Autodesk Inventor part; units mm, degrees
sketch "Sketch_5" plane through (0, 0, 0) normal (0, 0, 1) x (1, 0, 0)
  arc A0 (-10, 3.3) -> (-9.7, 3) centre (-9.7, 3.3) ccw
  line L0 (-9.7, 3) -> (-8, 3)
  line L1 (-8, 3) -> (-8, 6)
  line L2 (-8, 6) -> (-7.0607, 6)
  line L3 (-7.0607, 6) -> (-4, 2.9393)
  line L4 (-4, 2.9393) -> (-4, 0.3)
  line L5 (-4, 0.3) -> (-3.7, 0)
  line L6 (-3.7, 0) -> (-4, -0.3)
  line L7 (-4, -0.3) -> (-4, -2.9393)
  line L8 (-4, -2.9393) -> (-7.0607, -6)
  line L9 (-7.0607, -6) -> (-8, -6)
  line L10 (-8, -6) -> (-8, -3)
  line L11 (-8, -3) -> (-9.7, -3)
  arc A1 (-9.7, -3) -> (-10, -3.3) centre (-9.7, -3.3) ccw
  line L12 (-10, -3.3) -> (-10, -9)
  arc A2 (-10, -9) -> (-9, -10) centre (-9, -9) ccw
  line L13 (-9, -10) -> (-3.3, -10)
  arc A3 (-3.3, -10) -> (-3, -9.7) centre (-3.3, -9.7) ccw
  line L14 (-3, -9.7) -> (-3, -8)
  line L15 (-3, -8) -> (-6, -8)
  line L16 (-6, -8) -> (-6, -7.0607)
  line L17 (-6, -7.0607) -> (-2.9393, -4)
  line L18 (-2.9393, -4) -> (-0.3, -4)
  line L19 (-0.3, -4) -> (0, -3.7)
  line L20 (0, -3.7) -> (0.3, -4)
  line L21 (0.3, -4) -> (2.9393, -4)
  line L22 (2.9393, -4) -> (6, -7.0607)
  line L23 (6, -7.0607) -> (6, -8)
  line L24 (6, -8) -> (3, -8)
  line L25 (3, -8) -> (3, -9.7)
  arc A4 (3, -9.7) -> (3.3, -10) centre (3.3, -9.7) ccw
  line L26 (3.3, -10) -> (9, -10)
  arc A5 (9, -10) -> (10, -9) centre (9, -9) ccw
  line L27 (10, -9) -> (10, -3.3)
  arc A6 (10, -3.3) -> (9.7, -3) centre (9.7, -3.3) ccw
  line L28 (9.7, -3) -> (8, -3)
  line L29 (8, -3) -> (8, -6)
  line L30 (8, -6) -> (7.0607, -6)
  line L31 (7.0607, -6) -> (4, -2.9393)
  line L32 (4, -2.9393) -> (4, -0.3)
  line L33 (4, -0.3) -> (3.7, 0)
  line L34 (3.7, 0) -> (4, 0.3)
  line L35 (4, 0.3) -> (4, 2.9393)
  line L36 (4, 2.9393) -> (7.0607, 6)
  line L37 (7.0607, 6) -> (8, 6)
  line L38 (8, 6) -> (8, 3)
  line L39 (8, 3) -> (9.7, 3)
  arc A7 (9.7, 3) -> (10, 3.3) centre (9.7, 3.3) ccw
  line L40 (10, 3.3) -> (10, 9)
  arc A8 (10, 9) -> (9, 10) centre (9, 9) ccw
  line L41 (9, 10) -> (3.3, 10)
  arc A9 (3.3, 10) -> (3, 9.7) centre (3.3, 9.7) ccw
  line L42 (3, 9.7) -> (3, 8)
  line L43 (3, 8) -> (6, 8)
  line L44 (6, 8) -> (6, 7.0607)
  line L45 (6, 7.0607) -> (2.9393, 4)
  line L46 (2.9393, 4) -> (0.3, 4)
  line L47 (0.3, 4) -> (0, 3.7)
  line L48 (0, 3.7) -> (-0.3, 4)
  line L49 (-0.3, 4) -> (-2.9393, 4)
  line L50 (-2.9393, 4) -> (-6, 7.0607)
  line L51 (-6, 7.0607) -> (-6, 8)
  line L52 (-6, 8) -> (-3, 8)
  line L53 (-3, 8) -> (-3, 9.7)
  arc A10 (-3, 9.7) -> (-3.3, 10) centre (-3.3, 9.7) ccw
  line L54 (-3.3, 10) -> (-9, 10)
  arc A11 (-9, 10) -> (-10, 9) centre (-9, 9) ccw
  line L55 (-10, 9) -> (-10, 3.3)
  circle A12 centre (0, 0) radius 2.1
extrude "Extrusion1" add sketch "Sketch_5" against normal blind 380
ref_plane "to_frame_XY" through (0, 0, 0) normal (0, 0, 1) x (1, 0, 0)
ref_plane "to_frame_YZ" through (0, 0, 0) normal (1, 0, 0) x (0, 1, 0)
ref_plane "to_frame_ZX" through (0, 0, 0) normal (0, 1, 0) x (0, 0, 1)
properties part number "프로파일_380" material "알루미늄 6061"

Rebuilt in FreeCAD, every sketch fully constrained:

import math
import FreeCAD as App
import Part
import Sketcher
from FreeCAD import Vector

doc = App.newDocument("Part")
body = doc.addObject("PartDesign::Body", "Body")

# Sketch on XY plane
sketch1 = body.newObject("Sketcher::SketchObject", "Sketch")
sketch1.AttachmentSupport = (doc.getObject("XY_Plane"), [""])
sketch1.MapMode = "FlatFace"
sketch1.addGeometry([
    Part.LineSegment(Vector(-10, 9, 0), Vector(-10, 3.3, 0)),  # 0
    Part.ArcOfCircle(Part.Circle(Vector(-9.7, 3.3, 0), Vector(0, 0, 1), 0.3), math.radians(180), math.radians(270)),  # 1
    Part.LineSegment(Vector(-9.7, 3, 0), Vector(-8, 3, 0)),  # 2
    Part.LineSegment(Vector(-8, 3, 0), Vector(-8, 6, 0)),  # 3
    Part.LineSegment(Vector(-8, 6, 0), Vector(-7.06, 6, 0)),  # 4
    Part.LineSegment(Vector(-7.06, 6, 0), Vector(-4, 2.94, 0)),  # 5
    Part.LineSegment(Vector(-4, 2.94, 0), Vector(-4, 0.3, 0)),  # 6
    Part.LineSegment(Vector(-4, 0.3, 0), Vector(-3.7, 0, 0)),  # 7
    Part.LineSegment(Vector(-3.7, 0, 0), Vector(-4, -0.3, 0)),  # 8
    Part.LineSegment(Vector(-4, -0.3, 0), Vector(-4, -2.94, 0)),  # 9
    Part.LineSegment(Vector(-4, -2.94, 0), Vector(-7.06, -6, 0)),  # 10
    Part.LineSegment(Vector(-7.06, -6, 0), Vector(-8, -6, 0)),  # 11
    Part.LineSegment(Vector(-8, -6, 0), Vector(-8, -3, 0)),  # 12
    Part.LineSegment(Vector(-8, -3, 0), Vector(-9.7, -3, 0)),  # 13
    Part.ArcOfCircle(Part.Circle(Vector(-9.7, -3.3, 0), Vector(0, 0, 1), 0.3), math.radians(90), math.radians(180)),  # 14
    Part.LineSegment(Vector(-10, -3.3, 0), Vector(-10, -9, 0)),  # 15
    Part.ArcOfCircle(Part.Circle(Vector(-9, -9, 0), Vector(0, 0, 1), 1), math.radians(180), math.radians(270)),  # 16
    Part.LineSegment(Vector(-9, -10, 0), Vector(-3.3, -10, 0)),  # 17
    Part.ArcOfCircle(Part.Circle(Vector(-3.3, -9.7, 0), Vector(0, 0, 1), 0.3), math.radians(-90), math.radians(0)),  # 18
    Part.LineSegment(Vector(-3, -9.7, 0), Vector(-3, -8, 0)),  # 19
    Part.LineSegment(Vector(-3, -8, 0), Vector(-6, -8, 0)),  # 20
    Part.LineSegment(Vector(-6, -8, 0), Vector(-6, -7.06, 0)),  # 21
    Part.LineSegment(Vector(-6, -7.06, 0), Vector(-2.94, -4, 0)),  # 22
    Part.LineSegment(Vector(-2.94, -4, 0), Vector(-0.3, -4, 0)),  # 23
    Part.LineSegment(Vector(-0.3, -4, 0), Vector(0, -3.7, 0)),  # 24
    Part.LineSegment(Vector(0, -3.7, 0), Vector(0.3, -4, 0)),  # 25
    Part.LineSegment(Vector(0.3, -4, 0), Vector(2.94, -4, 0)),  # 26
    Part.LineSegment(Vector(2.94, -4, 0), Vector(6, -7.06, 0)),  # 27
    Part.LineSegment(Vector(6, -7.06, 0), Vector(6, -8, 0)),  # 28
    Part.LineSegment(Vector(6, -8, 0), Vector(3, -8, 0)),  # 29
    Part.LineSegment(Vector(3, -8, 0), Vector(3, -9.7, 0)),  # 30
    Part.ArcOfCircle(Part.Circle(Vector(3.3, -9.7, 0), Vector(0, 0, 1), 0.3), math.radians(180), math.radians(270)),  # 31
    Part.LineSegment(Vector(3.3, -10, 0), Vector(9, -10, 0)),  # 32
    Part.ArcOfCircle(Part.Circle(Vector(9, -9, 0), Vector(0, 0, 1), 1), math.radians(-90), math.radians(0)),  # 33
    Part.LineSegment(Vector(10, -9, 0), Vector(10, -3.3, 0)),  # 34
    Part.ArcOfCircle(Part.Circle(Vector(9.7, -3.3, 0), Vector(0, 0, 1), 0.3), math.radians(0), math.radians(90)),  # 35
    Part.LineSegment(Vector(9.7, -3, 0), Vector(8, -3, 0)),  # 36
    Part.LineSegment(Vector(8, -3, 0), Vector(8, -6, 0)),  # 37
    Part.LineSegment(Vector(8, -6, 0), Vector(7.06, -6, 0)),  # 38
    Part.LineSegment(Vector(7.06, -6, 0), Vector(4, -2.94, 0)),  # 39
    Part.LineSegment(Vector(4, -2.94, 0), Vector(4, -0.3, 0)),  # 40
    Part.LineSegment(Vector(4, -0.3, 0), Vector(3.7, 0, 0)),  # 41
    Part.LineSegment(Vector(3.7, 0, 0), Vector(4, 0.3, 0)),  # 42
    Part.LineSegment(Vector(4, 0.3, 0), Vector(4, 2.94, 0)),  # 43
    Part.LineSegment(Vector(4, 2.94, 0), Vector(7.06, 6, 0)),  # 44
    Part.LineSegment(Vector(7.06, 6, 0), Vector(8, 6, 0)),  # 45
    Part.LineSegment(Vector(8, 6, 0), Vector(8, 3, 0)),  # 46
    Part.LineSegment(Vector(8, 3, 0), Vector(9.7, 3, 0)),  # 47
    Part.ArcOfCircle(Part.Circle(Vector(9.7, 3.3, 0), Vector(0, 0, 1), 0.3), math.radians(-90), math.radians(0)),  # 48
    Part.LineSegment(Vector(10, 3.3, 0), Vector(10, 9, 0)),  # 49
    Part.ArcOfCircle(Part.Circle(Vector(9, 9, 0), Vector(0, 0, 1), 1), math.radians(0), math.radians(90)),  # 50
    Part.LineSegment(Vector(9, 10, 0), Vector(3.3, 10, 0)),  # 51
    Part.ArcOfCircle(Part.Circle(Vector(3.3, 9.7, 0), Vector(0, 0, 1), 0.3), math.radians(90), math.radians(180)),  # 52
    Part.LineSegment(Vector(3, 9.7, 0), Vector(3, 8, 0)),  # 53
    Part.LineSegment(Vector(3, 8, 0), Vector(6, 8, 0)),  # 54
    Part.LineSegment(Vector(6, 8, 0), Vector(6, 7.06, 0)),  # 55
    Part.LineSegment(Vector(6, 7.06, 0), Vector(2.94, 4, 0)),  # 56
    Part.LineSegment(Vector(2.94, 4, 0), Vector(0.3, 4, 0)),  # 57
    Part.LineSegment(Vector(0.3, 4, 0), Vector(0, 3.7, 0)),  # 58
    Part.LineSegment(Vector(0, 3.7, 0), Vector(-0.3, 4, 0)),  # 59
    Part.LineSegment(Vector(-0.3, 4, 0), Vector(-2.94, 4, 0)),  # 60
    Part.LineSegment(Vector(-2.94, 4, 0), Vector(-6, 7.06, 0)),  # 61
    Part.LineSegment(Vector(-6, 7.06, 0), Vector(-6, 8, 0)),  # 62
    Part.LineSegment(Vector(-6, 8, 0), Vector(-3, 8, 0)),  # 63
    Part.LineSegment(Vector(-3, 8, 0), Vector(-3, 9.7, 0)),  # 64
    Part.ArcOfCircle(Part.Circle(Vector(-3.3, 9.7, 0), Vector(0, 0, 1), 0.3), math.radians(0), math.radians(90)),  # 65
    Part.LineSegment(Vector(-3.3, 10, 0), Vector(-9, 10, 0)),  # 66
    Part.ArcOfCircle(Part.Circle(Vector(-9, 9, 0), Vector(0, 0, 1), 1), math.radians(90), math.radians(180)),  # 67
    Part.Circle(Vector(0, 0, 0), Vector(0, 0, 1), 2.1),  # 68
], False)
sketch1.addConstraint([
    Sketcher.Constraint("Tangent", 0, 2, 1, 1),
    Sketcher.Constraint("Tangent", 1, 2, 2, 1),
    Sketcher.Constraint("Coincident", 2, 2, 3, 1),
    Sketcher.Constraint("Coincident", 3, 2, 4, 1),
    Sketcher.Constraint("Coincident", 4, 2, 5, 1),
    Sketcher.Constraint("Coincident", 5, 2, 6, 1),
    Sketcher.Constraint("Coincident", 6, 2, 7, 1),
    Sketcher.Constraint("Coincident", 7, 2, 8, 1),
    Sketcher.Constraint("Coincident", 8, 2, 9, 1),
    Sketcher.Constraint("Coincident", 9, 2, 10, 1),
    Sketcher.Constraint("Coincident", 10, 2, 11, 1),
    Sketcher.Constraint("Coincident", 11, 2, 12, 1),
    Sketcher.Constraint("Coincident", 12, 2, 13, 1),
    Sketcher.Constraint("Tangent", 13, 2, 14, 1),
    Sketcher.Constraint("Tangent", 14, 2, 15, 1),
    Sketcher.Constraint("Tangent", 15, 2, 16, 1),
    Sketcher.Constraint("Tangent", 16, 2, 17, 1),
    Sketcher.Constraint("Tangent", 17, 2, 18, 1),
    Sketcher.Constraint("Tangent", 18, 2, 19, 1),
    Sketcher.Constraint("Coincident", 19, 2, 20, 1),
    Sketcher.Constraint("Coincident", 20, 2, 21, 1),
    Sketcher.Constraint("Coincident", 21, 2, 22, 1),
    Sketcher.Constraint("Coincident", 22, 2, 23, 1),
    Sketcher.Constraint("Coincident", 23, 2, 24, 1),
    Sketcher.Constraint("Coincident", 24, 2, 25, 1),
    Sketcher.Constraint("Coincident", 25, 2, 26, 1),
    Sketcher.Constraint("Coincident", 26, 2, 27, 1),
    Sketcher.Constraint("Coincident", 27, 2, 28, 1),
    Sketcher.Constraint("Coincident", 28, 2, 29, 1),
    Sketcher.Constraint("Coincident", 29, 2, 30, 1),
    Sketcher.Constraint("Tangent", 30, 2, 31, 1),
    Sketcher.Constraint("Tangent", 31, 2, 32, 1),
    Sketcher.Constraint("Tangent", 32, 2, 33, 1),
    Sketcher.Constraint("Tangent", 33, 2, 34, 1),
    Sketcher.Constraint("Tangent", 34, 2, 35, 1),
    Sketcher.Constraint("Tangent", 35, 2, 36, 1),
    Sketcher.Constraint("Coincident", 36, 2, 37, 1),
    Sketcher.Constraint("Coincident", 37, 2, 38, 1),
    Sketcher.Constraint("Coincident", 38, 2, 39, 1),
    Sketcher.Constraint("Coincident", 39, 2, 40, 1),
    Sketcher.Constraint("Coincident", 40, 2, 41, 1),
    Sketcher.Constraint("Coincident", 41, 2, 42, 1),
    Sketcher.Constraint("Coincident", 42, 2, 43, 1),
    Sketcher.Constraint("Coincident", 43, 2, 44, 1),
    Sketcher.Constraint("Coincident", 44, 2, 45, 1),
    Sketcher.Constraint("Coincident", 45, 2, 46, 1),
    Sketcher.Constraint("Coincident", 46, 2, 47, 1),
    Sketcher.Constraint("Tangent", 47, 2, 48, 1),
    Sketcher.Constraint("Tangent", 48, 2, 49, 1),
    Sketcher.Constraint("Tangent", 49, 2, 50, 1),
    Sketcher.Constraint("Tangent", 50, 2, 51, 1),
    Sketcher.Constraint("Tangent", 51, 2, 52, 1),
    Sketcher.Constraint("Tangent", 52, 2, 53, 1),
    Sketcher.Constraint("Coincident", 53, 2, 54, 1),
    Sketcher.Constraint("Coincident", 54, 2, 55, 1),
    Sketcher.Constraint("Coincident", 55, 2, 56, 1),
    Sketcher.Constraint("Coincident", 56, 2, 57, 1),
    Sketcher.Constraint("Coincident", 57, 2, 58, 1),
    Sketcher.Constraint("Coincident", 58, 2, 59, 1),
    Sketcher.Constraint("Coincident", 59, 2, 60, 1),
    Sketcher.Constraint("Coincident", 60, 2, 61, 1),
    Sketcher.Constraint("Coincident", 61, 2, 62, 1),
    Sketcher.Constraint("Coincident", 62, 2, 63, 1),
    Sketcher.Constraint("Coincident", 63, 2, 64, 1),
    Sketcher.Constraint("Tangent", 64, 2, 65, 1),
    Sketcher.Constraint("Tangent", 65, 2, 66, 1),
    Sketcher.Constraint("Tangent", 66, 2, 67, 1),
    Sketcher.Constraint("Tangent", 67, 2, 0, 1),
    Sketcher.Constraint("Vertical", 0),
    Sketcher.Constraint("Horizontal", 2),
    Sketcher.Constraint("Vertical", 3),
    Sketcher.Constraint("Horizontal", 4),
    Sketcher.Constraint("Vertical", 6),
    Sketcher.Constraint("Vertical", 9),
    Sketcher.Constraint("Horizontal", 11),
    Sketcher.Constraint("Vertical", 12),
    Sketcher.Constraint("Horizontal", 13),
    Sketcher.Constraint("Vertical", 15),
    Sketcher.Constraint("Horizontal", 17),
    Sketcher.Constraint("Vertical", 19),
    Sketcher.Constraint("Horizontal", 20),
    Sketcher.Constraint("Vertical", 21),
    Sketcher.Constraint("Horizontal", 23),
    Sketcher.Constraint("Horizontal", 26),
    Sketcher.Constraint("Vertical", 28),
    Sketcher.Constraint("Horizontal", 29),
    Sketcher.Constraint("Vertical", 30),
    Sketcher.Constraint("Horizontal", 32),
    Sketcher.Constraint("Vertical", 34),
    Sketcher.Constraint("Horizontal", 36),
    Sketcher.Constraint("Vertical", 37),
    Sketcher.Constraint("Horizontal", 38),
    Sketcher.Constraint("Vertical", 40),
    Sketcher.Constraint("Vertical", 43),
    Sketcher.Constraint("Horizontal", 45),
    Sketcher.Constraint("Vertical", 46),
    Sketcher.Constraint("Horizontal", 47),
    Sketcher.Constraint("Vertical", 49),
    Sketcher.Constraint("Horizontal", 51),
    Sketcher.Constraint("Vertical", 53),
    Sketcher.Constraint("Horizontal", 54),
    Sketcher.Constraint("Vertical", 55),
    Sketcher.Constraint("Horizontal", 57),
    Sketcher.Constraint("Horizontal", 60),
    Sketcher.Constraint("Vertical", 62),
    Sketcher.Constraint("Horizontal", 63),
    Sketcher.Constraint("Vertical", 64),
    Sketcher.Constraint("Horizontal", 66),
    Sketcher.Constraint("Coincident", 68, 3, -1, 1),
    Sketcher.Constraint("Equal", 1, 14),
    Sketcher.Constraint("Equal", 14, 18),
    Sketcher.Constraint("Equal", 18, 31),
    Sketcher.Constraint("Equal", 16, 33),
    Sketcher.Constraint("Equal", 31, 35),
    Sketcher.Constraint("Equal", 35, 48),
    Sketcher.Constraint("Equal", 33, 50),
    Sketcher.Constraint("Equal", 48, 52),
    Sketcher.Constraint("Equal", 52, 65),
    Sketcher.Constraint("Equal", 50, 67),
    Sketcher.Constraint("Symmetric", 1, 3, 35, 3, -1, 1),
    Sketcher.Constraint("Symmetric", 14, 3, 48, 3, -1, 1),
    Sketcher.Constraint("Symmetric", 18, 3, 52, 3, -1, 1),
    Sketcher.Constraint("Symmetric", 31, 3, 65, 3, -1, 1),
    Sketcher.Constraint("Symmetric", 3, 2, 37, 2, -1, 1),
    Sketcher.Constraint("Symmetric", 5, 2, 39, 2, -1, 1),
    Sketcher.Constraint("Symmetric", 7, 2, 41, 2, -1, 1),
    Sketcher.Constraint("Symmetric", 8, 2, 42, 2, -1, 1),
    Sketcher.Constraint("Symmetric", 10, 2, 44, 2, -1, 1),
    Sketcher.Constraint("Symmetric", 20, 2, 54, 2, -1, 1),
    Sketcher.Constraint("Symmetric", 22, 2, 56, 2, -1, 1),
    Sketcher.Constraint("Symmetric", 24, 2, 58, 2, -1, 1),
    Sketcher.Constraint("Symmetric", 25, 2, 59, 2, -1, 1),
    Sketcher.Constraint("Symmetric", 27, 2, 61, 2, -1, 1),
    Sketcher.Constraint("Symmetric", 18, 3, 31, 3, -2),
    Sketcher.Constraint("Symmetric", 14, 3, 35, 3, -2),
    Sketcher.Constraint("Symmetric", 23, 2, 25, 2, -2),
    Sketcher.Constraint("Symmetric", 21, 2, 27, 2, -2),
    Sketcher.Constraint("Symmetric", 11, 2, 37, 2, -2),
    Sketcher.Constraint("Symmetric", 9, 2, 39, 2, -2),
    Sketcher.Constraint("PointOnObject", 7, 2, -1),
    Sketcher.Constraint("PointOnObject", 24, 2, -2),
    Sketcher.Constraint("Parallel", 5, 7),
    Sketcher.Constraint("Perpendicular", 7, 8),
    Sketcher.Constraint("Parallel", 8, 10),
    Sketcher.Constraint("Parallel", 10, 22),
    Sketcher.Constraint("Parallel", 22, 24),
    Sketcher.Constraint("Perpendicular", 24, 25),
    Sketcher.Constraint("Parallel", 25, 27),
    Sketcher.Constraint("Parallel", 27, 39),
    Sketcher.Constraint("Parallel", 39, 41),
    Sketcher.Constraint("Parallel", 42, 44),
    Sketcher.Constraint("Parallel", 44, 56),
    Sketcher.Constraint("Parallel", 56, 58),
    Sketcher.Constraint("Parallel", 59, 61),
    Sketcher.Constraint("Horizontal", 20, 2, 28, 2),
    Sketcher.Constraint("Horizontal", 54, 2, 62, 2),
    Sketcher.Constraint("Vertical", 37, 2, 45, 2),
    Sketcher.Constraint("Equal", 66, 0),
    Sketcher.Constraint("Equal", 63, 3),
    Sketcher.Constraint("Equal", 60, 6),
    Sketcher.Constraint("Equal", 47, 19),
    Sketcher.Constraint("Equal", 45, 21),
    Sketcher.Constraint("Equal", 10, 22),
    Sketcher.Constraint("Equal", 8, 24),
    Sketcher.Constraint("Radius", 16, 1.0),
    Sketcher.Constraint("Diameter", 68, 4.2),
    Sketcher.Constraint("Radius", 1, 0.3),
    Sketcher.Constraint("DistanceX", 20, 2, 20, 1, 3.0),
    Sketcher.Constraint("DistanceX", 2, 1, 2, 2, 1.7),
    Sketcher.Constraint("DistanceX", 17, 1, 17, 2, 5.7),
    Sketcher.Constraint("DistanceX", 16, 3, -1, 1, 9.0),
    Sketcher.Constraint("DistanceX", 5, 2, -1, 1, 4.0),
    Sketcher.Constraint("DistanceY", -1, 1, 6, 2, 0.3),
    Sketcher.Constraint("DistanceX", 4, 1, 4, 2, 0.9393),
])
pad1 = body.newObject("PartDesign::Pad", "Pad")
pad1.Profile = sketch1
pad1.Length = 380
pad1.Reversed = True

doc.recompute()
